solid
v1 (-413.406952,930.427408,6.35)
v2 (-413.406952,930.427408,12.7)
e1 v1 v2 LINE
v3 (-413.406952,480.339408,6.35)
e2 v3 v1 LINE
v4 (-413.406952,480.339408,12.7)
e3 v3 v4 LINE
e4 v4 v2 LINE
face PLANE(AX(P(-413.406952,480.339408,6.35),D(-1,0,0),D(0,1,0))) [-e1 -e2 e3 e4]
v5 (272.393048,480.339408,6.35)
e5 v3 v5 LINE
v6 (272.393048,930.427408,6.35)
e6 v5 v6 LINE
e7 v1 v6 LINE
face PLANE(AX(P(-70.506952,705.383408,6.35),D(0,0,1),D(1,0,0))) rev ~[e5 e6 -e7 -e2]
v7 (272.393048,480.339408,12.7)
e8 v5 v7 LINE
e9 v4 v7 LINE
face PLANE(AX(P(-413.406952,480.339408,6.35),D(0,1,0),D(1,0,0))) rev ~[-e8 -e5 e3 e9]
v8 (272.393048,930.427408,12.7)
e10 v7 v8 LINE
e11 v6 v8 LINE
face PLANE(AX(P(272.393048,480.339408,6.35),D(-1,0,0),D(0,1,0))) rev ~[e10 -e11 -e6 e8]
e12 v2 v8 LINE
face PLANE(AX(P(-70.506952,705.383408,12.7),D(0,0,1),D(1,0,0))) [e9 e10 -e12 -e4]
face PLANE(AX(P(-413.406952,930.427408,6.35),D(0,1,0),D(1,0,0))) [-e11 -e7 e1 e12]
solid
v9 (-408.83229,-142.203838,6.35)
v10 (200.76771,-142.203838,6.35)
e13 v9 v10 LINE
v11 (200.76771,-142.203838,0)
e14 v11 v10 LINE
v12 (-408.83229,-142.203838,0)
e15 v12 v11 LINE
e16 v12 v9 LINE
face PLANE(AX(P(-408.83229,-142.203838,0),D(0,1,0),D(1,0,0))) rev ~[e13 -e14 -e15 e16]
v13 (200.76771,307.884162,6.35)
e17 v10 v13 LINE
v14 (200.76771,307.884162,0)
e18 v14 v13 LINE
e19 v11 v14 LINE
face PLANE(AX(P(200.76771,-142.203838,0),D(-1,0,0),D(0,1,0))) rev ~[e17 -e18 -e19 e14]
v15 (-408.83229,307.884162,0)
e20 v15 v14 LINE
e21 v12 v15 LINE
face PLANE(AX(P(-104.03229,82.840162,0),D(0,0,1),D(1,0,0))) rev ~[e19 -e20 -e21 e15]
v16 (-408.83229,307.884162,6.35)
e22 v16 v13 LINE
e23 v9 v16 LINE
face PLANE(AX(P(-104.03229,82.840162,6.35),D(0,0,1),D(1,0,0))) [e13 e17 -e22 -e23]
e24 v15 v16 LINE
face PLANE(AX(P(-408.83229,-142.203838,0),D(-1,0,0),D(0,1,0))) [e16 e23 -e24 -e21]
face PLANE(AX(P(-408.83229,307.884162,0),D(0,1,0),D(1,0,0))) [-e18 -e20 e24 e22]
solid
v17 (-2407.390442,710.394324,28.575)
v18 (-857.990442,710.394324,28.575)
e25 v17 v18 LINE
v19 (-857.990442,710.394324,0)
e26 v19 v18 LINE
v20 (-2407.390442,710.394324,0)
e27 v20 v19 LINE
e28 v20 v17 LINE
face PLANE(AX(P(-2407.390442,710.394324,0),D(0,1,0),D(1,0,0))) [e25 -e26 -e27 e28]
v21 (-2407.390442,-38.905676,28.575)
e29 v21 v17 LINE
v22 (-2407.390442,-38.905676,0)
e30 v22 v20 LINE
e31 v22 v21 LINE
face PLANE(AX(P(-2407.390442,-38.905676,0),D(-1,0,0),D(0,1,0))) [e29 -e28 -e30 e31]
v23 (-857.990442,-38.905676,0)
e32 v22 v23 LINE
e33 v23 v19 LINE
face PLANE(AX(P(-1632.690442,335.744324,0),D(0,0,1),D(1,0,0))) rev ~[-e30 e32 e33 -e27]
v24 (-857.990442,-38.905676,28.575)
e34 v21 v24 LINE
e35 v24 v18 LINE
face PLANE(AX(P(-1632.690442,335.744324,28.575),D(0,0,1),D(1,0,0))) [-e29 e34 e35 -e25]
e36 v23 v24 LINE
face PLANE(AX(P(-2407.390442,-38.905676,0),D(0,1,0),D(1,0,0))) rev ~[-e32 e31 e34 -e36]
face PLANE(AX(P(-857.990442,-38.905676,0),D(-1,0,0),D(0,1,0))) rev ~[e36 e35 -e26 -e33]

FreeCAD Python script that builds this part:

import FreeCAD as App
import Part
import Sketcher

V = App.Vector
Q = App.Units.Quantity

doc = App.newDocument("Part")
body = doc.addObject("PartDesign::Body", "Body")

# Sketch on XY plane
sketch1 = body.newObject("Sketcher::SketchObject", "Sketch")
sketch1.AttachmentSupport = (doc.getObject("XY_Plane"), [""])
sketch1.MapMode = "FlatFace"
sketch1.addGeometry(Part.LineSegment(V(-2407, 710, 0), V(-2407, -39, 0)), False)
sketch1.addGeometry(Part.LineSegment(V(-2407, -39, 0), V(-858, -39, 0)), False)
sketch1.addGeometry(Part.LineSegment(V(-858, -39, 0), V(-858, 710, 0)), False)
sketch1.addGeometry(Part.LineSegment(V(-858, 710, 0), V(-2407, 710, 0)), False)
sketch1.addConstraint(Sketcher.Constraint("Coincident", 0, 2, 1, 1))
sketch1.addConstraint(Sketcher.Constraint("Coincident", 1, 2, 2, 1))
sketch1.addConstraint(Sketcher.Constraint("Coincident", 2, 2, 3, 1))
sketch1.addConstraint(Sketcher.Constraint("Coincident", 3, 2, 0, 1))
sketch1.addConstraint(Sketcher.Constraint("Vertical", 0))
sketch1.addConstraint(Sketcher.Constraint("Horizontal", 1))
sketch1.addConstraint(Sketcher.Constraint("Vertical", 2))
sketch1.addConstraint(Sketcher.Constraint("Horizontal", 3))
sketch1.addConstraint(Sketcher.Constraint("DistanceX", 1, 1, 1, 2, Q("61 in")))
sketch1.addConstraint(Sketcher.Constraint("DistanceY", 0, 2, 0, 1, Q("29.5 in")))
sketch1.addConstraint(Sketcher.Constraint("DistanceX", 0, 2, -1, 1, Q("2407.390442 mm")))
sketch1.addConstraint(Sketcher.Constraint("DistanceY", 0, 2, -1, 1, Q("38.905676 mm")))
pad1 = body.newObject("PartDesign::Pad", "Pad")
pad1.Profile = sketch1
pad1.Length = Q("1.125 in")
body2 = doc.addObject("PartDesign::Body", "Body001")

# Sketch on XY plane
sketch2 = body2.newObject("Sketcher::SketchObject", "Sketch001")
sketch2.AttachmentSupport = (doc.getObject("XY_Plane001"), [""])
sketch2.MapMode = "FlatFace"
sketch2.addGeometry(Part.LineSegment(V(-409, 308, 0), V(-409, -142, 0)), False)
sketch2.addGeometry(Part.LineSegment(V(-409, -142, 0), V(201, -142, 0)), False)
sketch2.addGeometry(Part.LineSegment(V(201, -142, 0), V(201, 308, 0)), False)
sketch2.addGeometry(Part.LineSegment(V(201, 308, 0), V(-409, 308, 0)), False)
sketch2.addConstraint(Sketcher.Constraint("Coincident", 0, 2, 1, 1))
sketch2.addConstraint(Sketcher.Constraint("Coincident", 1, 2, 2, 1))
sketch2.addConstraint(Sketcher.Constraint("Coincident", 2, 2, 3, 1))
sketch2.addConstraint(Sketcher.Constraint("Coincident", 3, 2, 0, 1))
sketch2.addConstraint(Sketcher.Constraint("Vertical", 0))
sketch2.addConstraint(Sketcher.Constraint("Horizontal", 1))
sketch2.addConstraint(Sketcher.Constraint("Vertical", 2))
sketch2.addConstraint(Sketcher.Constraint("Horizontal", 3))
sketch2.addConstraint(Sketcher.Constraint("DistanceX", 1, 1, 1, 2, Q("24 in")))
sketch2.addConstraint(Sketcher.Constraint("DistanceY", 0, 2, 0, 1, Q("17.72 in")))
sketch2.addConstraint(Sketcher.Constraint("DistanceX", 0, 2, -1, 1, Q("408.83229 mm")))
sketch2.addConstraint(Sketcher.Constraint("DistanceY", -1, 1, 2, 2, Q("307.884162 mm")))
pad2 = body2.newObject("PartDesign::Pad", "Pad001")
pad2.Profile = sketch2
pad2.Length = Q("0.25 in")
body3 = doc.addObject("PartDesign::Body", "Body002")

# Sketch on XY plane
sketch3 = body3.newObject("Sketcher::SketchObject", "Sketch002")
sketch3.AttachmentSupport = (doc.getObject("XY_Plane002"), [""])
sketch3.MapMode = "FlatFace"
sketch3.AttachmentOffset = App.Placement(V(0, 0, 0.25 * 25.4), App.Rotation())
sketch3.addGeometry(Part.LineSegment(V(-413, 930, 0), V(-413, 480, 0)), False)
sketch3.addGeometry(Part.LineSegment(V(-413, 480, 0), V(272, 480, 0)), False)
sketch3.addGeometry(Part.LineSegment(V(272, 480, 0), V(272, 930, 0)), False)
sketch3.addGeometry(Part.LineSegment(V(272, 930, 0), V(-413, 930, 0)), False)
sketch3.addConstraint(Sketcher.Constraint("Coincident", 0, 2, 1, 1))
sketch3.addConstraint(Sketcher.Constraint("Coincident", 1, 2, 2, 1))
sketch3.addConstraint(Sketcher.Constraint("Coincident", 2, 2, 3, 1))
sketch3.addConstraint(Sketcher.Constraint("Coincident", 3, 2, 0, 1))
sketch3.addConstraint(Sketcher.Constraint("Vertical", 0))
sketch3.addConstraint(Sketcher.Constraint("Horizontal", 1))
sketch3.addConstraint(Sketcher.Constraint("Vertical", 2))
sketch3.addConstraint(Sketcher.Constraint("Horizontal", 3))
sketch3.addConstraint(Sketcher.Constraint("DistanceX", 1, 1, 1, 2, Q("27 in")))
sketch3.addConstraint(Sketcher.Constraint("DistanceY", 0, 2, 0, 1, Q("17.72 in")))
sketch3.addConstraint(Sketcher.Constraint("DistanceX", 0, 2, -1, 1, Q("413.406952 mm")))
sketch3.addConstraint(Sketcher.Constraint("DistanceY", -1, 1, 0, 2, Q("480.339408 mm")))
pad3 = body3.newObject("PartDesign::Pad", "Pad002")
pad3.Profile = sketch3
pad3.Length = Q("0.25 in")

doc.recompute()
